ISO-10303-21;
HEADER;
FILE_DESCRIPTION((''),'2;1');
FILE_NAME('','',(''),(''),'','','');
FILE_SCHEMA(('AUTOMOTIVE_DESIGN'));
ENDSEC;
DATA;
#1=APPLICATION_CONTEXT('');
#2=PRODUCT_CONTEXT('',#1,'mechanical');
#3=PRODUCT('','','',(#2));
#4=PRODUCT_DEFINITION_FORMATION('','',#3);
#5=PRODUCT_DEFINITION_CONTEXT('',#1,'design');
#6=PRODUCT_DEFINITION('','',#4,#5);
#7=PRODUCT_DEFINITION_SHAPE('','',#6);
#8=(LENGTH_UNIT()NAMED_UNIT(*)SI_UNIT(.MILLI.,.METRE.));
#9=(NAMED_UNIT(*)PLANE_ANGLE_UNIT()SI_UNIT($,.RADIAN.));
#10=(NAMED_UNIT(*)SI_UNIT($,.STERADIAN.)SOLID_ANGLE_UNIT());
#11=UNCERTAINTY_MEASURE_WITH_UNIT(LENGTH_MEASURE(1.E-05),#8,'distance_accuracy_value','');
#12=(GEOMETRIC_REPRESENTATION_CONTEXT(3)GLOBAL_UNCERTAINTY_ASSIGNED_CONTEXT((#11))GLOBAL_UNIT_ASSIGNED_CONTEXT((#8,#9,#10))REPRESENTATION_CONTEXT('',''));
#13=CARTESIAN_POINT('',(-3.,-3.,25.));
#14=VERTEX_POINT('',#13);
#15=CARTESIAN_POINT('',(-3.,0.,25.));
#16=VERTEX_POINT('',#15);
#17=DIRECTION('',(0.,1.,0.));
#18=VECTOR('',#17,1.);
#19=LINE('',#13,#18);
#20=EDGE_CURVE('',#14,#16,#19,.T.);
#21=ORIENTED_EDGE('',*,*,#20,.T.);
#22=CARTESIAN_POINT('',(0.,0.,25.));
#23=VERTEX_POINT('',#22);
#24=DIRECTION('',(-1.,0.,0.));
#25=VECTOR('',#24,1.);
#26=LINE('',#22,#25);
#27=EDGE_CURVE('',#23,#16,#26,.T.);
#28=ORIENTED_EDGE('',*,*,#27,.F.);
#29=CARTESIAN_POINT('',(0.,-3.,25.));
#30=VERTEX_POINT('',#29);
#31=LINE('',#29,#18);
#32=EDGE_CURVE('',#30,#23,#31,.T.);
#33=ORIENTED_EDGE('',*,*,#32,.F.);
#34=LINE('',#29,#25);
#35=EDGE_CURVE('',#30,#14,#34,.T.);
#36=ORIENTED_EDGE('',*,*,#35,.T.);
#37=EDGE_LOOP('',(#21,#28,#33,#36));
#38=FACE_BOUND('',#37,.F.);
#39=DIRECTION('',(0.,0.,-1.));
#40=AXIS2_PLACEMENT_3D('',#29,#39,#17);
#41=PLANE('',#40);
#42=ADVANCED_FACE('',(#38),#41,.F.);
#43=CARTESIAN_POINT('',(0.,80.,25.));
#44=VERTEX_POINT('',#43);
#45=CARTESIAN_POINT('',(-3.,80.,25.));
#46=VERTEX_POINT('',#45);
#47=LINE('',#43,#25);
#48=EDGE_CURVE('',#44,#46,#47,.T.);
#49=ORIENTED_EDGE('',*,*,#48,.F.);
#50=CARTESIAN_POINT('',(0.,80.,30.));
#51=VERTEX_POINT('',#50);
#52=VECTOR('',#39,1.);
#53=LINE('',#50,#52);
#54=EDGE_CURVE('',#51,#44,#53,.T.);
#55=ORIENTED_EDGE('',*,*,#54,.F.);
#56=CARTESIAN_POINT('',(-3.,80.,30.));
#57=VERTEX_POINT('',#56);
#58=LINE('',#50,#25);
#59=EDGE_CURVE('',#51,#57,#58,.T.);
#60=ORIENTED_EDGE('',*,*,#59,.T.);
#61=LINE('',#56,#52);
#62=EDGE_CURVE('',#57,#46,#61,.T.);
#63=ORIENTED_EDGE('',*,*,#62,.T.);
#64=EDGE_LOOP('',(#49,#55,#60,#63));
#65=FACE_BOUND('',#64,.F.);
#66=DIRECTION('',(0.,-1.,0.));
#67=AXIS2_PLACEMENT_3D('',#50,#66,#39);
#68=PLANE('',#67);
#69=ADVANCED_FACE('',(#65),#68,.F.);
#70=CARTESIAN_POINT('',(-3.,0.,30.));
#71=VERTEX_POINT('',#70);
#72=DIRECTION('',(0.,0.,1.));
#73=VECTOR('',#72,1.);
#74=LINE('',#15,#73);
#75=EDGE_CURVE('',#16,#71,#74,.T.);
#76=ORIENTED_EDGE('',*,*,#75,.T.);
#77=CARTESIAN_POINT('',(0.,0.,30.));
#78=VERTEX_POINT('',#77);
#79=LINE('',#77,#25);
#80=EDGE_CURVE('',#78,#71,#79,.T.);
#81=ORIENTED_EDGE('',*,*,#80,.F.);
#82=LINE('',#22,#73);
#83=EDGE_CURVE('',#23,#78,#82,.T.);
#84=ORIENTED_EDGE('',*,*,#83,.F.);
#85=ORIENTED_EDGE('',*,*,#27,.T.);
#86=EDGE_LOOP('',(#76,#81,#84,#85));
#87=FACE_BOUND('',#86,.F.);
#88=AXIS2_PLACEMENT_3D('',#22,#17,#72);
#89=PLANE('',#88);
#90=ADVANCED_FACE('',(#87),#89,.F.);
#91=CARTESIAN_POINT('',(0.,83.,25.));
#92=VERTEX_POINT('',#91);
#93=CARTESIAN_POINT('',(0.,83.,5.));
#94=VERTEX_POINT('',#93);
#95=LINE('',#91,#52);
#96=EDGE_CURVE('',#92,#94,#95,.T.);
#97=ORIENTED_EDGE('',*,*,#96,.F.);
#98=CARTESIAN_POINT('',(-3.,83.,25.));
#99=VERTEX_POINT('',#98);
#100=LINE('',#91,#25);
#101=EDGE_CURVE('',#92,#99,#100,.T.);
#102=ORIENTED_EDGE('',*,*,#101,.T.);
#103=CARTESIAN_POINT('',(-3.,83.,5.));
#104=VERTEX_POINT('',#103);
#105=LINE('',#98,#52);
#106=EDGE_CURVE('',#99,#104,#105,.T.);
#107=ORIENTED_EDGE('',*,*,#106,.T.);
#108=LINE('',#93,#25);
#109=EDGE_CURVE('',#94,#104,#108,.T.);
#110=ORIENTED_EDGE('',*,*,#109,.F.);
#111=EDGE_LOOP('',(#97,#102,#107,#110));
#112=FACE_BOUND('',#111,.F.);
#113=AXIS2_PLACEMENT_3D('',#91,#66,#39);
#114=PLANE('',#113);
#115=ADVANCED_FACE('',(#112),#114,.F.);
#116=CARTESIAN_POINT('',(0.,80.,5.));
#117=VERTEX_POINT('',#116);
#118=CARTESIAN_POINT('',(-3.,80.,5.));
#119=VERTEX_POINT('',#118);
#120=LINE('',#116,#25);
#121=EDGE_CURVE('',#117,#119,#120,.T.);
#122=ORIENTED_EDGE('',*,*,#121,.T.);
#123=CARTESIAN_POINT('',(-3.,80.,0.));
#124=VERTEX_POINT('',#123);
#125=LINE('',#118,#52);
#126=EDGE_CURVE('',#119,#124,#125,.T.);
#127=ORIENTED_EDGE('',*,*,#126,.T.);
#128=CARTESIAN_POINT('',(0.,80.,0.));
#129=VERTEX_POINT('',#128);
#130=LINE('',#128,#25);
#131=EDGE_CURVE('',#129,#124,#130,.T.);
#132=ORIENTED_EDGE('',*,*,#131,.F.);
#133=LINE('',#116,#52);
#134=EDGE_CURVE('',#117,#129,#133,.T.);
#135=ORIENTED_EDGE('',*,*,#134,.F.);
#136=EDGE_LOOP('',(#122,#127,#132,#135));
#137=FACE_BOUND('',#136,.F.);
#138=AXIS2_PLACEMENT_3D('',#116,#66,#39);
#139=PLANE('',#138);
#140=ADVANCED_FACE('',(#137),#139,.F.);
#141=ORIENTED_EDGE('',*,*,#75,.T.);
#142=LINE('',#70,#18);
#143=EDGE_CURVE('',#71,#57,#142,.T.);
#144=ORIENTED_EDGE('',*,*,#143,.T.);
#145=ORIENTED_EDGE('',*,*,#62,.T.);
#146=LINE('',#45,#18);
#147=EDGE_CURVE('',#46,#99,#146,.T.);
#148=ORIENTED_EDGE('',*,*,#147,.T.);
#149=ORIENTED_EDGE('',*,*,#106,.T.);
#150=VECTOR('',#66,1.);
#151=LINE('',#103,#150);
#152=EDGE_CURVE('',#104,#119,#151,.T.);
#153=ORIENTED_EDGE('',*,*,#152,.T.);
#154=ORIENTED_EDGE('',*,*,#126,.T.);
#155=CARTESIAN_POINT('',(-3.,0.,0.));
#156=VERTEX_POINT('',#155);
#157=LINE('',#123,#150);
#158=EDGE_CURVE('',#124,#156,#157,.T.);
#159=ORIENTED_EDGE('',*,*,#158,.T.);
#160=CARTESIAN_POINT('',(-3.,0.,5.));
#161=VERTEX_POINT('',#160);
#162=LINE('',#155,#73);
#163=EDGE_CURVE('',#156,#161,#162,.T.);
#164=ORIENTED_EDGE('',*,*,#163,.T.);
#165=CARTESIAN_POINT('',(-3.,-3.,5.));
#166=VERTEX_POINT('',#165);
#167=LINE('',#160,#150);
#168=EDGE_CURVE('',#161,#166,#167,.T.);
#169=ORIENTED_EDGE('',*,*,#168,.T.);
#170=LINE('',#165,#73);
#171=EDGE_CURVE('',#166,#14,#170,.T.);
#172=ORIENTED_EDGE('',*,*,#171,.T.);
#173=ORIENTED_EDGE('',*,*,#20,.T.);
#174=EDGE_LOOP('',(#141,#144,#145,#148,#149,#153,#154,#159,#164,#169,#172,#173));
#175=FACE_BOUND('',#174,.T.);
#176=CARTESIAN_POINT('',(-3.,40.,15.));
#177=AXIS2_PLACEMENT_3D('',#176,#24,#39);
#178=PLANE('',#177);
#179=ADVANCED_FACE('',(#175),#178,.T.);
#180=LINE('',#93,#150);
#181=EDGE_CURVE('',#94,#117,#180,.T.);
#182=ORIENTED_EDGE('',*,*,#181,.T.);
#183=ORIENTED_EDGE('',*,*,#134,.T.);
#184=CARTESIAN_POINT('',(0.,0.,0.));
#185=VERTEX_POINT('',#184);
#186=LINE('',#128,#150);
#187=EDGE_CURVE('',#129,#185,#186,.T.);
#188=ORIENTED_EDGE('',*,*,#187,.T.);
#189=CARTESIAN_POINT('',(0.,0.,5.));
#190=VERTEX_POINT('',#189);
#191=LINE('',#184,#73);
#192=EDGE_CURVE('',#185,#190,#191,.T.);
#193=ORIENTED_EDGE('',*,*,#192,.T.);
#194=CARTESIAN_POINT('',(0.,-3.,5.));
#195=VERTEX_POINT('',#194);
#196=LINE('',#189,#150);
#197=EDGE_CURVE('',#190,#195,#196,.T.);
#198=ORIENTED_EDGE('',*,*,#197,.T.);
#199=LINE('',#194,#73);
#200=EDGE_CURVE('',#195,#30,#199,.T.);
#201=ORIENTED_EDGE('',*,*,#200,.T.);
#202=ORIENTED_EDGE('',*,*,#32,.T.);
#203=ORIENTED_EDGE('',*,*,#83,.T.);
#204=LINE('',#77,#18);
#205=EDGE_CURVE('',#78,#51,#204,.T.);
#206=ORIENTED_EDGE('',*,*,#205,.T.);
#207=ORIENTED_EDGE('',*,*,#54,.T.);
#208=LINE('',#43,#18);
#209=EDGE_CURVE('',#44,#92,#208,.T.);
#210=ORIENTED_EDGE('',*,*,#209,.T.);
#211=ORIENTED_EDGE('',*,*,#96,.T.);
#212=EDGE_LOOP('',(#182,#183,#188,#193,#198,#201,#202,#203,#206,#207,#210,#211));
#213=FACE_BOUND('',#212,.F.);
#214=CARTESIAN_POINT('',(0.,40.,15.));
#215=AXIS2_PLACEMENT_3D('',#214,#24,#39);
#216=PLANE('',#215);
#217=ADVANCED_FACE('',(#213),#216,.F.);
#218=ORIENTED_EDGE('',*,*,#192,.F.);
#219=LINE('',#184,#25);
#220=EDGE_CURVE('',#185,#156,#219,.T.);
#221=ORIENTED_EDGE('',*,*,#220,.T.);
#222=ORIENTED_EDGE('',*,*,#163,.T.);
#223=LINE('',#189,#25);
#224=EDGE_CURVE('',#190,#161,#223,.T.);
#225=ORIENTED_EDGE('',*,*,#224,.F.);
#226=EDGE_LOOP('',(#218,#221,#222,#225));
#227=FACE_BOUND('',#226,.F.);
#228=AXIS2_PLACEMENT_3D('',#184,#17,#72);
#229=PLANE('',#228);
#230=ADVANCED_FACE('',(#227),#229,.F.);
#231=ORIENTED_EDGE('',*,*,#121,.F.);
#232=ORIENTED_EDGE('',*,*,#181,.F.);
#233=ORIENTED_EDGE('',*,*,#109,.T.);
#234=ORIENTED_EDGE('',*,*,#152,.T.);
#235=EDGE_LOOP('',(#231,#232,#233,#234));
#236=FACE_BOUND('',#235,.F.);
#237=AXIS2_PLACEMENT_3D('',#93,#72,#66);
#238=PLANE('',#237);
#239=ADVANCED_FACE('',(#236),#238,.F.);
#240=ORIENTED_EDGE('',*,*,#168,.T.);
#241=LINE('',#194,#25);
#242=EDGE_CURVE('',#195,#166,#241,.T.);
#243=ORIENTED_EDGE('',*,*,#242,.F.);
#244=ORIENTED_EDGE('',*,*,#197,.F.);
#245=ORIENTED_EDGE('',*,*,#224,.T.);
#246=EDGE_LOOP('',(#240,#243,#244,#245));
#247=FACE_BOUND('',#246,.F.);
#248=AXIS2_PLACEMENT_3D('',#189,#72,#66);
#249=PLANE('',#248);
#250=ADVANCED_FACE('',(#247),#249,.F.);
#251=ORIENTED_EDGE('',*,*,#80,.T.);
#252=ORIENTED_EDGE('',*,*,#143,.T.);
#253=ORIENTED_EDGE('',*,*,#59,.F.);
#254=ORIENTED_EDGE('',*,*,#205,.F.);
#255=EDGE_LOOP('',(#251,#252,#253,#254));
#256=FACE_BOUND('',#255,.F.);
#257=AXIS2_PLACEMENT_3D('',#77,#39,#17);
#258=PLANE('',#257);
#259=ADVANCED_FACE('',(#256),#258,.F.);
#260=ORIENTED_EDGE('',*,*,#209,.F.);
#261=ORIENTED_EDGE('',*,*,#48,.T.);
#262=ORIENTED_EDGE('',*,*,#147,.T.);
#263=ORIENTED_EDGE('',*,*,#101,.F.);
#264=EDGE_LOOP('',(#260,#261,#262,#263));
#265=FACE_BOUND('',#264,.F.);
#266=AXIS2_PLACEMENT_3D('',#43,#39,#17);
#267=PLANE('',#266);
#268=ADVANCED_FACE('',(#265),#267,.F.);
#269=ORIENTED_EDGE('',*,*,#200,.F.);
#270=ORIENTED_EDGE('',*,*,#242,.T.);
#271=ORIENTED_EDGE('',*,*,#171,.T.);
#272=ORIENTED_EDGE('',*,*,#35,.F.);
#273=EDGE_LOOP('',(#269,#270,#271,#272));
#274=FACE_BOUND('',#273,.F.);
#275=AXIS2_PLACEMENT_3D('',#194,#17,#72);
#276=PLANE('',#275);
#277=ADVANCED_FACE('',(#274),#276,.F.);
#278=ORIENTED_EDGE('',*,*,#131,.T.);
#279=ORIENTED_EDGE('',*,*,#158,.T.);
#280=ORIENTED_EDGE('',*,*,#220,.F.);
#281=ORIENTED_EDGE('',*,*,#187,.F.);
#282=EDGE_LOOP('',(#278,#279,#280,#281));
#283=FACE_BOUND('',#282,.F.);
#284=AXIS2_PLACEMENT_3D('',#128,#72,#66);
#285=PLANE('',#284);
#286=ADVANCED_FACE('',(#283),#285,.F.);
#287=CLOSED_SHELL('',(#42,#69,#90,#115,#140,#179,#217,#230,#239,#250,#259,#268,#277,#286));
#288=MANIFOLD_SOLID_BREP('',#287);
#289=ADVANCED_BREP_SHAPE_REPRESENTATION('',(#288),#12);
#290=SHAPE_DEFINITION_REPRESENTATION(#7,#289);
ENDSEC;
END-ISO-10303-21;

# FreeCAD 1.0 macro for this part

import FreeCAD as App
import Part
import Sketcher
Q = App.Units.Quantity


def add_polygon(sketch, points):
    """Adds a closed chain of lines whose ends are joined by coincident constraints."""
    first, n = sketch.GeometryCount, len(points)
    for a, b in zip(points, points[1:] + points[:1]):
        sketch.addGeometry(Part.LineSegment(App.Vector(*a, 0), App.Vector(*b, 0)), False)
    for i in range(n):
        sketch.addConstraint(Sketcher.Constraint("Coincident", first + i, 2, first + (i + 1) % n, 1))

doc = App.newDocument("Part")
body = doc.addObject("PartDesign::Body", "Body")

# Sketch on YZ plane
sketch1 = body.newObject("Sketcher::SketchObject", "Sketch")
sketch1.AttachmentSupport = (doc.getObject("YZ_Plane"), [""])
sketch1.MapMode = "FlatFace"
add_polygon(sketch1, [(80, 30), (0, 30), (0, 25), (-3, 25), (-3, 5), (0, 5), (0, 0), (80, 0), (80, 5), (83, 5), (83, 25), (80, 25)])  # lines 0-11
sketch1.addConstraint([
    Sketcher.Constraint("Horizontal", 0),
    Sketcher.Constraint("Vertical", 1),
    Sketcher.Constraint("Horizontal", 2),
    Sketcher.Constraint("Vertical", 3),
    Sketcher.Constraint("Horizontal", 4),
    Sketcher.Constraint("Vertical", 5),
    Sketcher.Constraint("Horizontal", 6),
    Sketcher.Constraint("Vertical", 7),
    Sketcher.Constraint("Horizontal", 8),
    Sketcher.Constraint("Vertical", 9),
    Sketcher.Constraint("Horizontal", 10),
    Sketcher.Constraint("Vertical", 11),
    Sketcher.Constraint("Coincident", 5, 2, -1, 1),
    Sketcher.Constraint("PointOnObject", 0, 2, -2),
    Sketcher.Constraint("Horizontal", 4, 2, 7, 2),
    Sketcher.Constraint("Horizontal", 2, 2, 9, 2),
    Sketcher.Constraint("Vertical", 7, 2, 10, 2),
    Sketcher.Constraint("Equal", 4, 8),
    Sketcher.Constraint("Equal", 1, 5),
    Sketcher.Constraint("DistanceX", 2, 2, 2, 1, Q("3 mm")),
    Sketcher.Constraint("DistanceX", 0, 2, 0, 1, Q("80 mm")),
    Sketcher.Constraint("DistanceY", 1, 2, 1, 1, Q("5 mm")),
    Sketcher.Constraint("DistanceY", 3, 2, 3, 1, Q("20 mm")),
])
pad1 = body.newObject("PartDesign::Pad", "Pad")
pad1.Profile = sketch1
pad1.Length = 3
pad1.Reversed = True

doc.recompute()
